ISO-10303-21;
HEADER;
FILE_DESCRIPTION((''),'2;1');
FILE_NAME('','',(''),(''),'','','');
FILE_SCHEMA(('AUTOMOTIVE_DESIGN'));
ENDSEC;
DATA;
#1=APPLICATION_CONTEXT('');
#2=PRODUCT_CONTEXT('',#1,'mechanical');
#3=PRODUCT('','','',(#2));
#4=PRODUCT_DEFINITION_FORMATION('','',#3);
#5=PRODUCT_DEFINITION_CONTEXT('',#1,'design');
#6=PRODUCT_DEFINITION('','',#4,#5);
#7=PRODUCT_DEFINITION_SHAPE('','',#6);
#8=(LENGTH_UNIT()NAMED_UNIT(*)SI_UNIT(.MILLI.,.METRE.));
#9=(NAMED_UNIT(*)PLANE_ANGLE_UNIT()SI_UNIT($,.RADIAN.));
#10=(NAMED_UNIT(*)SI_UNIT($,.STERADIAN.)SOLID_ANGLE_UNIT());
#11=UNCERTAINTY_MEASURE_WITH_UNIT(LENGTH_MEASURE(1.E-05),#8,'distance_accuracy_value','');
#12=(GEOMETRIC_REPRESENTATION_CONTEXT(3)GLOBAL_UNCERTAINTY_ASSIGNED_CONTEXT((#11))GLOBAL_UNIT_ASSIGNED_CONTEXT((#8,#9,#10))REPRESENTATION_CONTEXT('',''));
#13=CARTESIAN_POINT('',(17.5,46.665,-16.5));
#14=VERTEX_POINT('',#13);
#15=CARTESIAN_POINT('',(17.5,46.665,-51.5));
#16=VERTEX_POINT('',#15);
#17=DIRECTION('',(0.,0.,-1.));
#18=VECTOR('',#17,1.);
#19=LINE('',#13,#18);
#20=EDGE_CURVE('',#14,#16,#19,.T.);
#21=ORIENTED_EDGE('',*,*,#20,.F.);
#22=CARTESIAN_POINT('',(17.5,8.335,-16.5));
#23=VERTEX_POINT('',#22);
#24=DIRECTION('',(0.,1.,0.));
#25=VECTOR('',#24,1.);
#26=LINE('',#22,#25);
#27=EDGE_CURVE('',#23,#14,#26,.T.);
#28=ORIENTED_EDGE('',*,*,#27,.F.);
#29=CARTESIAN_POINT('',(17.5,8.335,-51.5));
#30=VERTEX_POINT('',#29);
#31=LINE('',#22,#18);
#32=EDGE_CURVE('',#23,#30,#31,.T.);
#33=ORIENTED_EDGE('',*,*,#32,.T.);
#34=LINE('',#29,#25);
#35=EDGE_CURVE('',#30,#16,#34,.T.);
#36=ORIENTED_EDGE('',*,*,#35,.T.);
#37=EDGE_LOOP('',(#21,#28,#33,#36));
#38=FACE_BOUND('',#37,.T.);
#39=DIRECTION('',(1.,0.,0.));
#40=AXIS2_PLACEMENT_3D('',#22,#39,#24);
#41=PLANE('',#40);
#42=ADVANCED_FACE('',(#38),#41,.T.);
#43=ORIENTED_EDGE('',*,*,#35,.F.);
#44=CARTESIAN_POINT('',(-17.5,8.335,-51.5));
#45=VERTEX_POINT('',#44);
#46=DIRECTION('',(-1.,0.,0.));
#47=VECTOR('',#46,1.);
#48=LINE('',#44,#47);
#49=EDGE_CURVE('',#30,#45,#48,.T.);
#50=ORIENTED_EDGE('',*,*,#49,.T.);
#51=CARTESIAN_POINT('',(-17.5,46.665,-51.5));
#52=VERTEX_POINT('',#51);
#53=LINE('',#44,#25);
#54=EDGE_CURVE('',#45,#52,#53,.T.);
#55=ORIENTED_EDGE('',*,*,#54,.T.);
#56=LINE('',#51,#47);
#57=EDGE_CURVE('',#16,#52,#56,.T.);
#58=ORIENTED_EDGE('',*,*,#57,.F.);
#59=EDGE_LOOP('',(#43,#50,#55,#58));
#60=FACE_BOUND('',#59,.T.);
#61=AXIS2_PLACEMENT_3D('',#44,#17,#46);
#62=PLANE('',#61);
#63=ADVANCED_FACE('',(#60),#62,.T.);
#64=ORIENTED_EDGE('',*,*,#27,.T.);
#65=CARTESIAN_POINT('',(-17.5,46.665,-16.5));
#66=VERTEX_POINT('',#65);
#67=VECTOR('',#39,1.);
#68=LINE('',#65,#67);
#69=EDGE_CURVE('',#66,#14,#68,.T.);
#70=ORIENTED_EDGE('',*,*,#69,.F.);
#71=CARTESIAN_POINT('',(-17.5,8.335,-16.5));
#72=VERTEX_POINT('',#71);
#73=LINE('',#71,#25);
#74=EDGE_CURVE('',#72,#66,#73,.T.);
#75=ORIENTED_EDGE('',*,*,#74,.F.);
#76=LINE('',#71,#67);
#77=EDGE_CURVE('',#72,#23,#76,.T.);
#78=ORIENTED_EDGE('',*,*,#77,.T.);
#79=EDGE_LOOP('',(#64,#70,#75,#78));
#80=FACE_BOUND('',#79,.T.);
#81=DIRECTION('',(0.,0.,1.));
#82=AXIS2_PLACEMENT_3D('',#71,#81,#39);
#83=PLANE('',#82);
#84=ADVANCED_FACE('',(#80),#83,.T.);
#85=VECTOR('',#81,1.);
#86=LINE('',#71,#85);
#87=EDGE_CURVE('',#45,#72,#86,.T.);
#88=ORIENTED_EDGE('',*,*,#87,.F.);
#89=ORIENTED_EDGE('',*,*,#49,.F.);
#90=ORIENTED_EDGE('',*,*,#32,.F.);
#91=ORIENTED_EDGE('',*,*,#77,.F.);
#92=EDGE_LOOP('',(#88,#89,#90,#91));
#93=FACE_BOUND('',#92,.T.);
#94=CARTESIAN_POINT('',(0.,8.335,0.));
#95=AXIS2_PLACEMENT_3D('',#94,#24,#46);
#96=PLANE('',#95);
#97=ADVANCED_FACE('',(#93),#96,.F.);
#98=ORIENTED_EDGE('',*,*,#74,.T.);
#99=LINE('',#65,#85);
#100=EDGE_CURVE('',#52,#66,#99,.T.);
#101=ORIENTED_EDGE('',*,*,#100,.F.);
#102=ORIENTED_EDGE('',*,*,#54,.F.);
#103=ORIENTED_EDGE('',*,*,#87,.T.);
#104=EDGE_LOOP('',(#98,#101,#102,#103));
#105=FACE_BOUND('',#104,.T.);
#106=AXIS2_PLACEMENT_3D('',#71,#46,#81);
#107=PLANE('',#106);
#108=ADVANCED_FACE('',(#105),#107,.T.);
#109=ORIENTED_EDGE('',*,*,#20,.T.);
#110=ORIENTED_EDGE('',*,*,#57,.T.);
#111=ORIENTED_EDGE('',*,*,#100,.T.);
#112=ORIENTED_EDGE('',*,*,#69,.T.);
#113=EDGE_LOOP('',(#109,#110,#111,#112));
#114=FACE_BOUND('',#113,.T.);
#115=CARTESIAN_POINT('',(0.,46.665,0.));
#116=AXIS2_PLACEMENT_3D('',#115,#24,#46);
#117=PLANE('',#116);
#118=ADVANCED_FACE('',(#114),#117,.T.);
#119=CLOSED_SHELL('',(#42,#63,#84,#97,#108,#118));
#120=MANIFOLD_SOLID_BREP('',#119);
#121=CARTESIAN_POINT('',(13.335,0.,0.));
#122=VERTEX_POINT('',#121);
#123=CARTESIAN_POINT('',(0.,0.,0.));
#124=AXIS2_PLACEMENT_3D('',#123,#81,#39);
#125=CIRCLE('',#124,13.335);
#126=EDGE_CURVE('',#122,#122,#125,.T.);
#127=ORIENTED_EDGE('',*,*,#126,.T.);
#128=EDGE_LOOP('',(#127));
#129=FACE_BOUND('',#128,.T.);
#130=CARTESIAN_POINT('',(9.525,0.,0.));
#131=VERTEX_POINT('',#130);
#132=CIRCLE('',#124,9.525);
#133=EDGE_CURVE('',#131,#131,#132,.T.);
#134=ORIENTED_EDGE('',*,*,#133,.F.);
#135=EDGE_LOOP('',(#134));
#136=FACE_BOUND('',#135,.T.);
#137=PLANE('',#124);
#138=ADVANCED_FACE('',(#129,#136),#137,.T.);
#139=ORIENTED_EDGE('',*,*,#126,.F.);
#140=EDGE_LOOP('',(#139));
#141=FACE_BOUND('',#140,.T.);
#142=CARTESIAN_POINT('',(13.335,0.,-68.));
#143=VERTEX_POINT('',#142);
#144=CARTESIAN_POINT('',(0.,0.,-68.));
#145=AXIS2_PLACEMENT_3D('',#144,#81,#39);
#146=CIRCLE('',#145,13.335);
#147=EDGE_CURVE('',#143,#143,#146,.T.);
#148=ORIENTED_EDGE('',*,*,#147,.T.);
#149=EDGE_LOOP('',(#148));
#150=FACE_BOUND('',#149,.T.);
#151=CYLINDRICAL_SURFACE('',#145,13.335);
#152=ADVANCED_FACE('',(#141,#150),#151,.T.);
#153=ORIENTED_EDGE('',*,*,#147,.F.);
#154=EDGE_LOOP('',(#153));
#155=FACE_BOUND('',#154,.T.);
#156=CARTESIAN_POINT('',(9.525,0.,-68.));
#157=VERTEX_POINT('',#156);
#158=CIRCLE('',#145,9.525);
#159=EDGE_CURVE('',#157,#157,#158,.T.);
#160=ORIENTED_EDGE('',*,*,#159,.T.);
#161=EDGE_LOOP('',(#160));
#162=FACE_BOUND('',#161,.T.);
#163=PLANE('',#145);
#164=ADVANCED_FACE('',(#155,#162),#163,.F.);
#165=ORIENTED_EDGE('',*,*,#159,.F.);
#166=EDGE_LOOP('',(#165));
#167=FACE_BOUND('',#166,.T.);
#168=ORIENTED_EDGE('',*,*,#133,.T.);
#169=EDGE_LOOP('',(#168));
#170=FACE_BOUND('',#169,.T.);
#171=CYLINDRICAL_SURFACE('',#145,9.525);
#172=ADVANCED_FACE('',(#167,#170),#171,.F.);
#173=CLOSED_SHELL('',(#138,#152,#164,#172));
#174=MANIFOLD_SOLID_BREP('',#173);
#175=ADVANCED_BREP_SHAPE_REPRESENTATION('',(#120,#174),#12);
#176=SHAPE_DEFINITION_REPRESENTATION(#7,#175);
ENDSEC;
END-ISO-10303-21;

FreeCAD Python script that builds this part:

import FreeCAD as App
import Part
import Sketcher

V = App.Vector
Q = App.Units.Quantity


def add_polygon(sketch, points):
    """Adds a closed chain of lines whose ends are joined by coincident constraints."""
    first, n = sketch.GeometryCount, len(points)
    for a, b in zip(points, points[1:] + points[:1]):
        sketch.addGeometry(Part.LineSegment(App.Vector(*a, 0), App.Vector(*b, 0)), False)
    for i in range(n):
        sketch.addConstraint(Sketcher.Constraint("Coincident", first + i, 2, first + (i + 1) % n, 1))

doc = App.newDocument("Part")
body = doc.addObject("PartDesign::Body", "Body")

# Sketch on XY plane
sketch1 = body.newObject("Sketcher::SketchObject", "Sketch")
sketch1.AttachmentSupport = (doc.getObject("XY_Plane"), [""])
sketch1.MapMode = "FlatFace"
sketch1.addGeometry([
    Part.Circle(V(0, 0, 0), V(0, 0, 1), 13),
    Part.Circle(V(0, 0, 0), V(0, 0, 1), 10),
], False)
sketch1.addConstraint([
    Sketcher.Constraint("Coincident", 0, 3, -1, 1),
    Sketcher.Constraint("Coincident", 1, 3, -1, 1),
    Sketcher.Constraint("Diameter", 0, Q("26.67 mm")),
    Sketcher.Constraint("Diameter", 1, Q("19.05 mm")),
])
pad1 = body.newObject("PartDesign::Pad", "Pad")
pad1.Profile = sketch1
pad1.Length = 68
pad1.Reversed = True
body2 = doc.addObject("PartDesign::Body", "Body001")

# Sketch on XZ plane
sketch2 = body2.newObject("Sketcher::SketchObject", "Sketch001")
sketch2.AttachmentSupport = (doc.getObject("XZ_Plane001"), [""])
sketch2.MapMode = "FlatFace"
sketch2.AttachmentOffset = App.Placement(V(0, 0, -13.335), App.Rotation())
add_polygon(sketch2, [(-18, -16), (18, -16), (18, -52), (-18, -52)])  # lines 0-3
sketch2.addConstraint([
    Sketcher.Constraint("Horizontal", 0),
    Sketcher.Constraint("Vertical", 1),
    Sketcher.Constraint("Horizontal", 2),
    Sketcher.Constraint("Vertical", 3),
    Sketcher.Constraint("Equal", 2, 1),
    Sketcher.Constraint("DistanceX", 0, 1, 0, 2, Q("35 mm")),
    Sketcher.Constraint("DistanceX", -1, 1, 0, 2, Q("17.5 mm")),
    Sketcher.Constraint("DistanceY", 0, 2, -1, 1, Q("16.5 mm")),
])
pad2 = body2.newObject("PartDesign::Pad", "Pad001")
pad2.Profile = sketch2
pad2.Type = "TwoLengths"
pad2.Length = 33.33
pad2.Length2 = 5
pad2.Reversed = True

doc.recompute()
